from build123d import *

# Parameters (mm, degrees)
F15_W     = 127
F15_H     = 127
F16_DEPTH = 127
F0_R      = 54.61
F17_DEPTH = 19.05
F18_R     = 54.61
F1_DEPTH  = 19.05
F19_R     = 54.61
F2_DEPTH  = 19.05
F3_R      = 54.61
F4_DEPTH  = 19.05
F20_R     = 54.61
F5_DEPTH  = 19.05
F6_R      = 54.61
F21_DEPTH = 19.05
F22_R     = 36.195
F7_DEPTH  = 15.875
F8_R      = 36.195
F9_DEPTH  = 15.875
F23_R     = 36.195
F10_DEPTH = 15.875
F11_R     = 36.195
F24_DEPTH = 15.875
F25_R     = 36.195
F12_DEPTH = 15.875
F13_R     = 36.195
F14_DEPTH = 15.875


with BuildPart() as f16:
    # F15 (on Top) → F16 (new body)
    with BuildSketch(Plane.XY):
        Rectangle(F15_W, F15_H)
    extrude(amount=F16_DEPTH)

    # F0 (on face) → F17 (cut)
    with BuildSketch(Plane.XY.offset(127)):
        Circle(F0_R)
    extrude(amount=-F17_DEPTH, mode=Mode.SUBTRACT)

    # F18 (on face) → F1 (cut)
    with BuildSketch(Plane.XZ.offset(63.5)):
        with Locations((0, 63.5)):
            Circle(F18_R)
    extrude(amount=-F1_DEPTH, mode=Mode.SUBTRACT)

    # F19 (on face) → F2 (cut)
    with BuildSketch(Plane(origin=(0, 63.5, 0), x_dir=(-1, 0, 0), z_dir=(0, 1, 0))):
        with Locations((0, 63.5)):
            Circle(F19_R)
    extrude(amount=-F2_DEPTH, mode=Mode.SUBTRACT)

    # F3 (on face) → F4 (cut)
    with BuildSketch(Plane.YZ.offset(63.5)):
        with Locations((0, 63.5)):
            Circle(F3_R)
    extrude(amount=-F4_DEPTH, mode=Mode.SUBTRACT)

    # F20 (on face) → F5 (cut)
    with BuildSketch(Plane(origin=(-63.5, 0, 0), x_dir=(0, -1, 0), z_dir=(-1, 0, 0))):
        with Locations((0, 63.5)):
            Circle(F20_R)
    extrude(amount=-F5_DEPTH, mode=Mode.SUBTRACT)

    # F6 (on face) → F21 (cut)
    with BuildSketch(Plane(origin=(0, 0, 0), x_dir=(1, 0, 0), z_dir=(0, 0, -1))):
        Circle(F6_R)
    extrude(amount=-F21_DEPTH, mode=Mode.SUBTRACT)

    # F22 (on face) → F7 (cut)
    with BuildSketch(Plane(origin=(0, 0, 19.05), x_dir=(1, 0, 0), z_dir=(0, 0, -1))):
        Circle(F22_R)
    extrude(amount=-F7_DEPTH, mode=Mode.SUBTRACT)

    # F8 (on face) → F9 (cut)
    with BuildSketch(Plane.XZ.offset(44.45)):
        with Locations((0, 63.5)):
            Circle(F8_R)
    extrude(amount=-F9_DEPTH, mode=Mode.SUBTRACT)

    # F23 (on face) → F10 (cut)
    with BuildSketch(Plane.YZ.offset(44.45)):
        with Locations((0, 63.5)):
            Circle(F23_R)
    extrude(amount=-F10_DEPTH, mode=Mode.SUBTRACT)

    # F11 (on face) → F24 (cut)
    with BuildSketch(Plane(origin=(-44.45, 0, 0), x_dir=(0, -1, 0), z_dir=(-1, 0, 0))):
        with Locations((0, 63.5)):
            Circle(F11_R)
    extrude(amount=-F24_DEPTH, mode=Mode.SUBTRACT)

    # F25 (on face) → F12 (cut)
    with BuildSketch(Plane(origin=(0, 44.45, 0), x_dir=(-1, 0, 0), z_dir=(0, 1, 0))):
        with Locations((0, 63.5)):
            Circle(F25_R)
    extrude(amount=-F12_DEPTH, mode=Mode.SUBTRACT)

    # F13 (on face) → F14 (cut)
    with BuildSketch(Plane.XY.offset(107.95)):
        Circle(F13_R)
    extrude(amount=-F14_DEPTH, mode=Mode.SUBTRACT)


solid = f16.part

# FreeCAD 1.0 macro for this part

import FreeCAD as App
import Part
import Sketcher

V = App.Vector
Q = App.Units.Quantity


def add_polygon(sketch, points):
    """Adds a closed chain of lines whose ends are joined by coincident constraints."""
    first, n = sketch.GeometryCount, len(points)
    for a, b in zip(points, points[1:] + points[:1]):
        sketch.addGeometry(Part.LineSegment(App.Vector(*a, 0), App.Vector(*b, 0)), False)
    for i in range(n):
        sketch.addConstraint(Sketcher.Constraint("Coincident", first + i, 2, first + (i + 1) % n, 1))

doc = App.newDocument("Part")
body = doc.addObject("PartDesign::Body", "Body")

# Sketch on XY plane
sketch1 = body.newObject("Sketcher::SketchObject", "Sketch")
sketch1.AttachmentSupport = (doc.getObject("XY_Plane"), [""])
sketch1.MapMode = "FlatFace"
add_polygon(sketch1, [(-64, 64), (-64, -64), (64, -64), (64, 64)])  # lines 0-3
sketch1.addConstraint([
    Sketcher.Constraint("Vertical", 0),
    Sketcher.Constraint("Horizontal", 1),
    Sketcher.Constraint("Vertical", 2),
    Sketcher.Constraint("Horizontal", 3),
    Sketcher.Constraint("Symmetric", 0, 2, 2, 2, -1, 1),
    Sketcher.Constraint("Equal", 3, 0),
    Sketcher.Constraint("DistanceX", 1, 1, 1, 2, Q("5 in")),
])
pad1 = body.newObject("PartDesign::Pad", "Pad")
pad1.Profile = sketch1
pad1.Length = Q("5 in")

# Sketch on XY plane
sketch2 = body.newObject("Sketcher::SketchObject", "Sketch001")
sketch2.AttachmentSupport = (doc.getObject("XY_Plane"), [""])
sketch2.MapMode = "FlatFace"
sketch2.AttachmentOffset = App.Placement(V(0, 0, 5 * 25.4), App.Rotation())
sketch2.addGeometry(Part.Circle(V(0, 0, 0), V(0, 0, 1), 55), False)
sketch2.addConstraint([
    Sketcher.Constraint("Coincident", 0, 3, -1, 1),
    Sketcher.Constraint("Diameter", 0, Q("4.3 in")),
])
pocket1 = body.newObject("PartDesign::Pocket", "Pocket")
pocket1.Profile = sketch2
pocket1.Length = Q("0.75 in")

# Sketch on XZ plane
sketch3 = body.newObject("Sketcher::SketchObject", "Sketch002")
sketch3.AttachmentSupport = (doc.getObject("XZ_Plane"), [""])
sketch3.MapMode = "FlatFace"
sketch3.AttachmentOffset = App.Placement(V(0, 0, 2.5 * 25.4), App.Rotation())
sketch3.addGeometry(Part.Circle(V(0, 64, 0), V(0, 0, 1), 55), False)
sketch3.addConstraint([
    Sketcher.Constraint("PointOnObject", 0, 3, -2),
    Sketcher.Constraint("Diameter", 0, Q("4.3 in")),
    Sketcher.Constraint("DistanceY", -1, 1, 0, 3, Q("2.5 in")),
])
pocket2 = body.newObject("PartDesign::Pocket", "Pocket001")
pocket2.Profile = sketch3
pocket2.Length = Q("0.75 in")

# Sketch on XZ plane
sketch4 = body.newObject("Sketcher::SketchObject", "Sketch003")
sketch4.AttachmentSupport = (doc.getObject("XZ_Plane"), [""])
sketch4.MapMode = "FlatFace"
sketch4.AttachmentOffset = App.Placement(V(0, 0, -2.5 * 25.4), App.Rotation())
sketch4.addGeometry(Part.Circle(V(0, 64, 0), V(0, 0, 1), 55), False)
sketch4.addConstraint([
    Sketcher.Constraint("PointOnObject", 0, 3, -2),
    Sketcher.Constraint("Diameter", 0, Q("4.3 in")),
    Sketcher.Constraint("DistanceY", -1, 1, 0, 3, Q("2.5 in")),
])
pocket3 = body.newObject("PartDesign::Pocket", "Pocket002")
pocket3.Profile = sketch4
pocket3.Length = Q("0.75 in")
pocket3.Reversed = True

# Sketch on YZ plane
sketch5 = body.newObject("Sketcher::SketchObject", "Sketch004")
sketch5.AttachmentSupport = (doc.getObject("YZ_Plane"), [""])
sketch5.MapMode = "FlatFace"
sketch5.AttachmentOffset = App.Placement(V(0, 0, 2.5 * 25.4), App.Rotation())
sketch5.addGeometry(Part.Circle(V(0, 64, 0), V(0, 0, 1), 55), False)
sketch5.addConstraint([
    Sketcher.Constraint("PointOnObject", 0, 3, -2),
    Sketcher.Constraint("Diameter", 0, Q("4.3 in")),
    Sketcher.Constraint("DistanceY", -1, 1, 0, 3, Q("2.5 in")),
])
pocket4 = body.newObject("PartDesign::Pocket", "Pocket003")
pocket4.Profile = sketch5
pocket4.Length = Q("0.75 in")

# Sketch on YZ plane
sketch6 = body.newObject("Sketcher::SketchObject", "Sketch005")
sketch6.AttachmentSupport = (doc.getObject("YZ_Plane"), [""])
sketch6.MapMode = "FlatFace"
sketch6.AttachmentOffset = App.Placement(V(0, 0, -2.5 * 25.4), App.Rotation())
sketch6.addGeometry(Part.Circle(V(0, 64, 0), V(0, 0, 1), 55), False)
sketch6.addConstraint([
    Sketcher.Constraint("PointOnObject", 0, 3, -2),
    Sketcher.Constraint("Diameter", 0, Q("4.3 in")),
    Sketcher.Constraint("DistanceY", -1, 1, 0, 3, Q("2.5 in")),
])
pocket5 = body.newObject("PartDesign::Pocket", "Pocket004")
pocket5.Profile = sketch6
pocket5.Length = Q("0.75 in")
pocket5.Reversed = True

# Sketch on XY plane
sketch7 = body.newObject("Sketcher::SketchObject", "Sketch006")
sketch7.AttachmentSupport = (doc.getObject("XY_Plane"), [""])
sketch7.MapMode = "FlatFace"
sketch7.addGeometry(Part.Circle(V(0, 0, 0), V(0, 0, 1), 55), False)
sketch7.addConstraint([
    Sketcher.Constraint("Coincident", 0, 3, -1, 1),
    Sketcher.Constraint("Diameter", 0, Q("4.3 in")),
])
pocket6 = body.newObject("PartDesign::Pocket", "Pocket005")
pocket6.Profile = sketch7
pocket6.Length = Q("0.75 in")
pocket6.Reversed = True

# Sketch on XY plane
sketch8 = body.newObject("Sketcher::SketchObject", "Sketch007")
sketch8.AttachmentSupport = (doc.getObject("XY_Plane"), [""])
sketch8.MapMode = "FlatFace"
sketch8.AttachmentOffset = App.Placement(V(0, 0, 0.75 * 25.4), App.Rotation())
sketch8.addGeometry(Part.Circle(V(0, 0, 0), V(0, 0, 1), 36), False)
sketch8.addConstraint([
    Sketcher.Constraint("Coincident", 0, 3, -1, 1),
    Sketcher.Constraint("Diameter", 0, Q("2.85 in")),
])
pocket7 = body.newObject("PartDesign::Pocket", "Pocket006")
pocket7.Profile = sketch8
pocket7.Length = Q("0.625 in")
pocket7.Reversed = True

# Sketch on XZ plane
sketch9 = body.newObject("Sketcher::SketchObject", "Sketch008")
sketch9.AttachmentSupport = (doc.getObject("XZ_Plane"), [""])
sketch9.MapMode = "FlatFace"
sketch9.AttachmentOffset = App.Placement(V(0, 0, 1.75 * 25.4), App.Rotation())
sketch9.addGeometry(Part.Circle(V(0, 64, 0), V(0, 0, 1), 36), False)
sketch9.addConstraint([
    Sketcher.Constraint("PointOnObject", 0, 3, -2),
    Sketcher.Constraint("Diameter", 0, Q("2.85 in")),
    Sketcher.Constraint("DistanceY", -1, 1, 0, 3, Q("2.5 in")),
])
pocket8 = body.newObject("PartDesign::Pocket", "Pocket007")
pocket8.Profile = sketch9
pocket8.Length = Q("0.625 in")

# Sketch on YZ plane
sketch10 = body.newObject("Sketcher::SketchObject", "Sketch009")
sketch10.AttachmentSupport = (doc.getObject("YZ_Plane"), [""])
sketch10.MapMode = "FlatFace"
sketch10.AttachmentOffset = App.Placement(V(0, 0, 1.75 * 25.4), App.Rotation())
sketch10.addGeometry(Part.Circle(V(0, 64, 0), V(0, 0, 1), 36), False)
sketch10.addConstraint([
    Sketcher.Constraint("PointOnObject", 0, 3, -2),
    Sketcher.Constraint("Diameter", 0, Q("2.85 in")),
    Sketcher.Constraint("DistanceY", -1, 1, 0, 3, Q("2.5 in")),
])
pocket9 = body.newObject("PartDesign::Pocket", "Pocket008")
pocket9.Profile = sketch10
pocket9.Length = Q("0.625 in")

# Sketch on YZ plane
sketch11 = body.newObject("Sketcher::SketchObject", "Sketch010")
sketch11.AttachmentSupport = (doc.getObject("YZ_Plane"), [""])
sketch11.MapMode = "FlatFace"
sketch11.AttachmentOffset = App.Placement(V(0, 0, -1.75 * 25.4), App.Rotation())
sketch11.addGeometry(Part.Circle(V(0, 64, 0), V(0, 0, 1), 36), False)
sketch11.addConstraint([
    Sketcher.Constraint("PointOnObject", 0, 3, -2),
    Sketcher.Constraint("Diameter", 0, Q("2.85 in")),
    Sketcher.Constraint("DistanceY", -1, 1, 0, 3, Q("2.5 in")),
])
pocket10 = body.newObject("PartDesign::Pocket", "Pocket009")
pocket10.Profile = sketch11
pocket10.Length = Q("0.625 in")
pocket10.Reversed = True

# Sketch on XZ plane
sketch12 = body.newObject("Sketcher::SketchObject", "Sketch011")
sketch12.AttachmentSupport = (doc.getObject("XZ_Plane"), [""])
sketch12.MapMode = "FlatFace"
sketch12.AttachmentOffset = App.Placement(V(0, 0, -1.75 * 25.4), App.Rotation())
sketch12.addGeometry(Part.Circle(V(0, 64, 0), V(0, 0, 1), 36), False)
sketch12.addConstraint([
    Sketcher.Constraint("PointOnObject", 0, 3, -2),
    Sketcher.Constraint("Diameter", 0, Q("2.85 in")),
    Sketcher.Constraint("DistanceY", -1, 1, 0, 3, Q("2.5 in")),
])
pocket11 = body.newObject("PartDesign::Pocket", "Pocket010")
pocket11.Profile = sketch12
pocket11.Length = Q("0.625 in")
pocket11.Reversed = True

# Sketch on XY plane
sketch13 = body.newObject("Sketcher::SketchObject", "Sketch012")
sketch13.AttachmentSupport = (doc.getObject("XY_Plane"), [""])
sketch13.MapMode = "FlatFace"
sketch13.AttachmentOffset = App.Placement(V(0, 0, 4.25 * 25.4), App.Rotation())
sketch13.addGeometry(Part.Circle(V(0, 0, 0), V(0, 0, 1), 36), False)
sketch13.addConstraint([
    Sketcher.Constraint("Coincident", 0, 3, -1, 1),
    Sketcher.Constraint("Diameter", 0, Q("2.85 in")),
])
pocket12 = body.newObject("PartDesign::Pocket", "Pocket011")
pocket12.Profile = sketch13
pocket12.Length = Q("0.625 in")

doc.recompute()
